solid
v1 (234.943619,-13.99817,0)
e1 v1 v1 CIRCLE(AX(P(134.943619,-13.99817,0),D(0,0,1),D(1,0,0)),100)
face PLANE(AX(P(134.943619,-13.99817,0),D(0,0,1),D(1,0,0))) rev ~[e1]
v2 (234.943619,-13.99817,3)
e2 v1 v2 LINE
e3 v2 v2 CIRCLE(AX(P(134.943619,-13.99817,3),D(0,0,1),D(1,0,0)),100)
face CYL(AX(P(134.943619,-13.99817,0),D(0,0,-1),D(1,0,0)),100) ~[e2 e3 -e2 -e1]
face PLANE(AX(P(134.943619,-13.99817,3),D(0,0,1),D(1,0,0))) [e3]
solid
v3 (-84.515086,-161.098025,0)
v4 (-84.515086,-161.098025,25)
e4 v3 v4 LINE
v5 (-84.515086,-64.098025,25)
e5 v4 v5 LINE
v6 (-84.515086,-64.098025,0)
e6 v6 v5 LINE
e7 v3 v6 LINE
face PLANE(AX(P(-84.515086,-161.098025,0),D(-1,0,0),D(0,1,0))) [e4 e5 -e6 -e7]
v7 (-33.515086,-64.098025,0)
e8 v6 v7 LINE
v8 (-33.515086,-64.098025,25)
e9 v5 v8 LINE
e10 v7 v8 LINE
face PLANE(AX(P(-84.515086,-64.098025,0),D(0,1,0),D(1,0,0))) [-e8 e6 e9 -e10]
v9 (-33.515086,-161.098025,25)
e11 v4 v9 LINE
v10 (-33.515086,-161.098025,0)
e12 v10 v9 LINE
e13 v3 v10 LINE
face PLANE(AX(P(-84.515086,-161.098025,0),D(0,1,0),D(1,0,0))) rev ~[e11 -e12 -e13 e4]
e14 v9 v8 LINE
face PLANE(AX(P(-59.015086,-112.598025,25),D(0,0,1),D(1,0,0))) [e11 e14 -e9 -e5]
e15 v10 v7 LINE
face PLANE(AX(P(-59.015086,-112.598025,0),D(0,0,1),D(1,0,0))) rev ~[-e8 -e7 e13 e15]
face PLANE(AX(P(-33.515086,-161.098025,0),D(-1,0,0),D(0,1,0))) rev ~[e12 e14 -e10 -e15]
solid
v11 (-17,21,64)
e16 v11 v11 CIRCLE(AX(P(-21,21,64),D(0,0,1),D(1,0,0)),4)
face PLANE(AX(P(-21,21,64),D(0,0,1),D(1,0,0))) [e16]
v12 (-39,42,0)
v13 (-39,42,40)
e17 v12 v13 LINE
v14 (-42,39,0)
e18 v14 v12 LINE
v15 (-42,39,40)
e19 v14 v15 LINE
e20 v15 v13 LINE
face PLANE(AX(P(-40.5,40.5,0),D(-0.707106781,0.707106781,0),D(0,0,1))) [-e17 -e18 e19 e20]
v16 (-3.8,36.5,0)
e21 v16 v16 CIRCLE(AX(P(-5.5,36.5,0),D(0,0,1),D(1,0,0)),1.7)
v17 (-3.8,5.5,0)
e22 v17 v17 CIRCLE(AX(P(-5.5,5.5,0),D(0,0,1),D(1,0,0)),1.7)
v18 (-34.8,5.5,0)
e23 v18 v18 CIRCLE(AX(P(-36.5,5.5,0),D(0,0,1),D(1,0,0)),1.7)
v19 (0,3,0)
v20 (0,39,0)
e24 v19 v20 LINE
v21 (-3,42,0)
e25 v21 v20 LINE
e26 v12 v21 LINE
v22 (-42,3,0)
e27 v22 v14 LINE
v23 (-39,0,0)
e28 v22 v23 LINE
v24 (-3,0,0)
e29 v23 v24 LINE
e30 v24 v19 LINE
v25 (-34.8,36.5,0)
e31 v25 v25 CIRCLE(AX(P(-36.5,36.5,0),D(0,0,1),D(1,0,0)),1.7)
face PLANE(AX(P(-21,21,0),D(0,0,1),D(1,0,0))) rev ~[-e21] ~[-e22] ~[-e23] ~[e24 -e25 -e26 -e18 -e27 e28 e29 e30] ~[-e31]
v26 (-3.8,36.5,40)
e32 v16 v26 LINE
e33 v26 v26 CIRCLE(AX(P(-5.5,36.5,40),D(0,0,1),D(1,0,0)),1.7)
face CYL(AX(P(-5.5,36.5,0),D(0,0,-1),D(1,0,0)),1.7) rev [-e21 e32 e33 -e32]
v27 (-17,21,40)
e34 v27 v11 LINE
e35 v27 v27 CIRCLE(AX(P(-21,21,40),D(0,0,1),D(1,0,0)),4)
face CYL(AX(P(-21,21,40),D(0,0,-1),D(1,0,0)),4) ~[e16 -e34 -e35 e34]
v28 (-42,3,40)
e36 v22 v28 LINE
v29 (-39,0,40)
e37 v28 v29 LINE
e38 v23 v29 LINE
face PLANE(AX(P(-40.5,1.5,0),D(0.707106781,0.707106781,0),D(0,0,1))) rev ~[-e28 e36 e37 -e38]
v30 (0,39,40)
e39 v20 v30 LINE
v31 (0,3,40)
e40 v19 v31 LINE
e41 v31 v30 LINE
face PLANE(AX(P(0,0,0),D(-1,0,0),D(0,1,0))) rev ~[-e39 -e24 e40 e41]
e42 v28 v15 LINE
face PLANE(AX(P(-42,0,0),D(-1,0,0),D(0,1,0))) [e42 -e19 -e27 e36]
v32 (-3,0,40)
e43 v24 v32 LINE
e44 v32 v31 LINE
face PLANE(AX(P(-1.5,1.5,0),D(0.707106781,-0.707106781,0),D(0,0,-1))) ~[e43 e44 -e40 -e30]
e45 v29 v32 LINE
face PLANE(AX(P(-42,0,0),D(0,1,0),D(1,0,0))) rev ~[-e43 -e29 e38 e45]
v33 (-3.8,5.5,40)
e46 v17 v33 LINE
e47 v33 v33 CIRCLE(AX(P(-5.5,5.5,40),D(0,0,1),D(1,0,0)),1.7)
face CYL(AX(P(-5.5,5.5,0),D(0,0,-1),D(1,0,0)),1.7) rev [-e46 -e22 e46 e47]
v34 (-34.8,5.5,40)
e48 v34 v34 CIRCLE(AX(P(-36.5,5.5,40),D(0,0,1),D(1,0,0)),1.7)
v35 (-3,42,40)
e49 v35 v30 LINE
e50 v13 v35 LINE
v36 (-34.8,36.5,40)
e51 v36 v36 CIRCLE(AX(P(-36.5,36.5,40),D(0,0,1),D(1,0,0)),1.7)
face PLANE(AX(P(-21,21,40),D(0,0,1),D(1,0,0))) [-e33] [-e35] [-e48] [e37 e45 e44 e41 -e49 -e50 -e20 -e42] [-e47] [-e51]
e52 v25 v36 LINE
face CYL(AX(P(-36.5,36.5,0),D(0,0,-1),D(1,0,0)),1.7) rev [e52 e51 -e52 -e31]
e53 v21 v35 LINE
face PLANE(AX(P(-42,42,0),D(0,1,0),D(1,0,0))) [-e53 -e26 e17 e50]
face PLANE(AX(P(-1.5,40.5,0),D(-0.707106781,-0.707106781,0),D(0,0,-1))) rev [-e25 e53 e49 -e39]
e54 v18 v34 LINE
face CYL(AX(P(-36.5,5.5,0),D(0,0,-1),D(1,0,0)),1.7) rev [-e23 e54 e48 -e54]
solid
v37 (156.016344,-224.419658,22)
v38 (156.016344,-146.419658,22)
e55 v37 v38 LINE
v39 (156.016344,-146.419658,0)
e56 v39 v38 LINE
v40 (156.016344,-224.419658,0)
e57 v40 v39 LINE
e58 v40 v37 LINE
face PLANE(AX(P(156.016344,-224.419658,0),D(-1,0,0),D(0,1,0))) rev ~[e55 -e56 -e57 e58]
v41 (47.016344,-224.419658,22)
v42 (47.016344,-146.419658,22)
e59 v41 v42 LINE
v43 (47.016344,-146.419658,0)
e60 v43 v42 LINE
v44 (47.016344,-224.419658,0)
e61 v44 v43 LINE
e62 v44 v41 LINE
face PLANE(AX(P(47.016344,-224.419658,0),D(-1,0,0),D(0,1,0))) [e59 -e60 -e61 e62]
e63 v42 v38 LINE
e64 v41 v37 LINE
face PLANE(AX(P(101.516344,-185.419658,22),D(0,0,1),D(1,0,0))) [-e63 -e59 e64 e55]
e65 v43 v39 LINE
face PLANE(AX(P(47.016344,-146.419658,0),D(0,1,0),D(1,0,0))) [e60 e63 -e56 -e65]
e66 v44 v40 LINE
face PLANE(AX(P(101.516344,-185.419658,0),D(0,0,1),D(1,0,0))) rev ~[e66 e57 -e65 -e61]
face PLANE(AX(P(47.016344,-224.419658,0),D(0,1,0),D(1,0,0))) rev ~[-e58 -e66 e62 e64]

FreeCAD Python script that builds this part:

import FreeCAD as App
import Part
import Sketcher
Q = App.Units.Quantity


def edges_at(feature, points):
    """Names of the edges that pass closest to the given points."""
    edges = feature.Shape.Edges
    near = lambda p: min(range(len(edges)), key=lambda i: edges[i].distToShape(Part.Vertex(*p))[0])
    return sorted({f"Edge{near(p) + 1}" for p in points})

doc = App.newDocument("Part")
body = doc.addObject("PartDesign::Body", "Body")

# Sketch on XY plane
sketch1 = doc.addObject("Sketcher::SketchObject", "Sketch")
body.addObject(sketch1)
sketch1.AttachmentSupport = (doc.XY_Plane, [""])
sketch1.MapMode = "FlatFace"
sketch1.addGeometry([
    Part.LineSegment(App.Vector(-42, 42, 0), App.Vector(-42, 0, 0)),  # 0
    Part.LineSegment(App.Vector(-42, 0, 0), App.Vector(0, 0, 0)),  # 1
    Part.LineSegment(App.Vector(0, 0, 0), App.Vector(0, 42, 0)),  # 2
    Part.LineSegment(App.Vector(0, 42, 0), App.Vector(-42, 42, 0)),  # 3
    Part.Circle(App.Vector(-36.5, 5.5, 0), App.Vector(0, 0, 1), 1.7),  # 4
    Part.Circle(App.Vector(-5.5, 5.5, 0), App.Vector(0, 0, 1), 1.7),  # 5
    Part.Circle(App.Vector(-36.5, 36.5, 0), App.Vector(0, 0, 1), 1.7),  # 6
    Part.Circle(App.Vector(-5.5, 36.5, 0), App.Vector(0, 0, 1), 1.7),  # 7
], False)
sketch1.addConstraint([
    Sketcher.Constraint("Coincident", 0, 2, 1, 1),
    Sketcher.Constraint("Coincident", 1, 2, 2, 1),
    Sketcher.Constraint("Coincident", 2, 2, 3, 1),
    Sketcher.Constraint("Coincident", 3, 2, 0, 1),
    Sketcher.Constraint("Vertical", 0),
    Sketcher.Constraint("Horizontal", 1),
    Sketcher.Constraint("Vertical", 2),
    Sketcher.Constraint("Horizontal", 3),
    Sketcher.Constraint("Coincident", 1, 2, -1, 1),
    Sketcher.Constraint("Equal", 4, 5),
    Sketcher.Constraint("Equal", 5, 6),
    Sketcher.Constraint("Equal", 6, 7),
    Sketcher.Constraint("Horizontal", 4, 3, 5, 3),
    Sketcher.Constraint("Horizontal", 6, 3, 7, 3),
    Sketcher.Constraint("Vertical", 4, 3, 6, 3),
    Sketcher.Constraint("Vertical", 5, 3, 7, 3),
    Sketcher.Constraint("Equal", 3, 0),
    Sketcher.Constraint("Diameter", 4, Q("3.4 mm")),
    Sketcher.Constraint("DistanceX", 1, 1, 1, 2, Q("42 mm")),
    Sketcher.Constraint("DistanceX", 4, 3, 5, 3, Q("31 mm")),
    Sketcher.Constraint("DistanceY", 4, 3, 6, 3, Q("31 mm")),
    Sketcher.Constraint("DistanceX", 4, 3, -1, 1, Q("36.5 mm")),
    Sketcher.Constraint("DistanceY", -1, 1, 4, 3, Q("5.5 mm")),
])
pad1 = doc.addObject("PartDesign::Pad", "Pad")
body.addObject(pad1)
pad1.Profile = sketch1
pad1.Length = 40

# Sketch on XY plane
sketch2 = doc.addObject("Sketcher::SketchObject", "Sketch001")
body.addObject(sketch2)
sketch2.AttachmentSupport = (doc.XY_Plane, [""])
sketch2.MapMode = "FlatFace"
sketch2.AttachmentOffset = App.Placement(App.Vector(0, 0, 40), App.Rotation())
sketch2.addGeometry(Part.Circle(App.Vector(-21, 21, 0), App.Vector(0, 0, 1), 4), False)
sketch2.addConstraint([
    Sketcher.Constraint("Diameter", 0, Q("8 mm")),
    Sketcher.Constraint("DistanceX", 0, 3, -1, 1, Q("21 mm")),
    Sketcher.Constraint("DistanceY", -1, 1, 0, 3, Q("21 mm")),
])
pad2 = doc.addObject("PartDesign::Pad", "Pad001")
body.addObject(pad2)
pad2.Profile = sketch2
pad2.Length = 24
doc.recompute()

chamfer = doc.addObject("PartDesign::Chamfer", "Chamfer")
body.addObject(chamfer)
chamfer.Base = (pad2, edges_at(pad2, [
    (0, 42, 20),
    (0, 0, 20),
    (-42, 0, 20),
    (-42, 42, 20),
]))
chamfer.Size = 3
body2 = doc.addObject("PartDesign::Body", "Body001")

# Sketch on XY plane
sketch3 = doc.addObject("Sketcher::SketchObject", "Sketch002")
body2.addObject(sketch3)
sketch3.AttachmentSupport = (doc.getObject("XY_Plane001"), [""])
sketch3.MapMode = "FlatFace"
sketch3.addGeometry(Part.Circle(App.Vector(135, -14, 0), App.Vector(0, 0, 1), 100), False)
sketch3.addConstraint([
    Sketcher.Constraint("Diameter", 0, Q("200 mm")),
    Sketcher.Constraint("DistanceX", -1, 1, 0, 3, Q("134.943619 mm")),
    Sketcher.Constraint("DistanceY", 0, 3, -1, 1, Q("13.99817 mm")),
])
pad3 = doc.addObject("PartDesign::Pad", "Pad002")
body2.addObject(pad3)
pad3.Profile = sketch3
pad3.Length = 3
body3 = doc.addObject("PartDesign::Body", "Body002")

# Sketch on XY plane
sketch4 = doc.addObject("Sketcher::SketchObject", "Sketch003")
body3.addObject(sketch4)
sketch4.AttachmentSupport = (doc.getObject("XY_Plane002"), [""])
sketch4.MapMode = "FlatFace"
sketch4.addGeometry([
    Part.LineSegment(App.Vector(-85, -64, 0), App.Vector(-85, -161, 0)),
    Part.LineSegment(App.Vector(-85, -161, 0), App.Vector(-34, -161, 0)),
    Part.LineSegment(App.Vector(-34, -161, 0), App.Vector(-34, -64, 0)),
    Part.LineSegment(App.Vector(-34, -64, 0), App.Vector(-85, -64, 0)),
], False)
sketch4.addConstraint([
    Sketcher.Constraint("Coincident", 0, 2, 1, 1),
    Sketcher.Constraint("Coincident", 1, 2, 2, 1),
    Sketcher.Constraint("Coincident", 2, 2, 3, 1),
    Sketcher.Constraint("Coincident", 3, 2, 0, 1),
    Sketcher.Constraint("Vertical", 0),
    Sketcher.Constraint("Horizontal", 1),
    Sketcher.Constraint("Vertical", 2),
    Sketcher.Constraint("Horizontal", 3),
    Sketcher.Constraint("DistanceX", 1, 1, 1, 2, Q("51 mm")),
    Sketcher.Constraint("DistanceY", 0, 2, 0, 1, Q("97 mm")),
    Sketcher.Constraint("DistanceX", 0, 2, -1, 1, Q("84.515086 mm")),
    Sketcher.Constraint("DistanceY", 0, 2, -1, 1, Q("161.098025 mm")),
])
pad4 = doc.addObject("PartDesign::Pad", "Pad003")
body3.addObject(pad4)
pad4.Profile = sketch4
pad4.Length = 25
body4 = doc.addObject("PartDesign::Body", "Body003")

# Sketch on XY plane
sketch5 = doc.addObject("Sketcher::SketchObject", "Sketch004")
body4.addObject(sketch5)
sketch5.AttachmentSupport = (doc.getObject("XY_Plane003"), [""])
sketch5.MapMode = "FlatFace"
sketch5.addGeometry([
    Part.LineSegment(App.Vector(47, -146, 0), App.Vector(47, -224, 0)),
    Part.LineSegment(App.Vector(47, -224, 0), App.Vector(156, -224, 0)),
    Part.LineSegment(App.Vector(156, -224, 0), App.Vector(156, -146, 0)),
    Part.LineSegment(App.Vector(156, -146, 0), App.Vector(47, -146, 0)),
], False)
sketch5.addConstraint([
    Sketcher.Constraint("Coincident", 0, 2, 1, 1),
    Sketcher.Constraint("Coincident", 1, 2, 2, 1),
    Sketcher.Constraint("Coincident", 2, 2, 3, 1),
    Sketcher.Constraint("Coincident", 3, 2, 0, 1),
    Sketcher.Constraint("Vertical", 0),
    Sketcher.Constraint("Horizontal", 1),
    Sketcher.Constraint("Vertical", 2),
    Sketcher.Constraint("Horizontal", 3),
    Sketcher.Constraint("DistanceX", 1, 1, 1, 2, Q("109 mm")),
    Sketcher.Constraint("DistanceY", 0, 2, 0, 1, Q("78 mm")),
    Sketcher.Constraint("DistanceY", 0, 2, -1, 1, Q("224.419658 mm")),
    Sketcher.Constraint("DistanceX", -1, 1, 0, 2, Q("47.016344 mm")),
])
pad5 = doc.addObject("PartDesign::Pad", "Pad004")
body4.addObject(pad5)
pad5.Profile = sketch5
pad5.Length = 22

doc.recompute()
